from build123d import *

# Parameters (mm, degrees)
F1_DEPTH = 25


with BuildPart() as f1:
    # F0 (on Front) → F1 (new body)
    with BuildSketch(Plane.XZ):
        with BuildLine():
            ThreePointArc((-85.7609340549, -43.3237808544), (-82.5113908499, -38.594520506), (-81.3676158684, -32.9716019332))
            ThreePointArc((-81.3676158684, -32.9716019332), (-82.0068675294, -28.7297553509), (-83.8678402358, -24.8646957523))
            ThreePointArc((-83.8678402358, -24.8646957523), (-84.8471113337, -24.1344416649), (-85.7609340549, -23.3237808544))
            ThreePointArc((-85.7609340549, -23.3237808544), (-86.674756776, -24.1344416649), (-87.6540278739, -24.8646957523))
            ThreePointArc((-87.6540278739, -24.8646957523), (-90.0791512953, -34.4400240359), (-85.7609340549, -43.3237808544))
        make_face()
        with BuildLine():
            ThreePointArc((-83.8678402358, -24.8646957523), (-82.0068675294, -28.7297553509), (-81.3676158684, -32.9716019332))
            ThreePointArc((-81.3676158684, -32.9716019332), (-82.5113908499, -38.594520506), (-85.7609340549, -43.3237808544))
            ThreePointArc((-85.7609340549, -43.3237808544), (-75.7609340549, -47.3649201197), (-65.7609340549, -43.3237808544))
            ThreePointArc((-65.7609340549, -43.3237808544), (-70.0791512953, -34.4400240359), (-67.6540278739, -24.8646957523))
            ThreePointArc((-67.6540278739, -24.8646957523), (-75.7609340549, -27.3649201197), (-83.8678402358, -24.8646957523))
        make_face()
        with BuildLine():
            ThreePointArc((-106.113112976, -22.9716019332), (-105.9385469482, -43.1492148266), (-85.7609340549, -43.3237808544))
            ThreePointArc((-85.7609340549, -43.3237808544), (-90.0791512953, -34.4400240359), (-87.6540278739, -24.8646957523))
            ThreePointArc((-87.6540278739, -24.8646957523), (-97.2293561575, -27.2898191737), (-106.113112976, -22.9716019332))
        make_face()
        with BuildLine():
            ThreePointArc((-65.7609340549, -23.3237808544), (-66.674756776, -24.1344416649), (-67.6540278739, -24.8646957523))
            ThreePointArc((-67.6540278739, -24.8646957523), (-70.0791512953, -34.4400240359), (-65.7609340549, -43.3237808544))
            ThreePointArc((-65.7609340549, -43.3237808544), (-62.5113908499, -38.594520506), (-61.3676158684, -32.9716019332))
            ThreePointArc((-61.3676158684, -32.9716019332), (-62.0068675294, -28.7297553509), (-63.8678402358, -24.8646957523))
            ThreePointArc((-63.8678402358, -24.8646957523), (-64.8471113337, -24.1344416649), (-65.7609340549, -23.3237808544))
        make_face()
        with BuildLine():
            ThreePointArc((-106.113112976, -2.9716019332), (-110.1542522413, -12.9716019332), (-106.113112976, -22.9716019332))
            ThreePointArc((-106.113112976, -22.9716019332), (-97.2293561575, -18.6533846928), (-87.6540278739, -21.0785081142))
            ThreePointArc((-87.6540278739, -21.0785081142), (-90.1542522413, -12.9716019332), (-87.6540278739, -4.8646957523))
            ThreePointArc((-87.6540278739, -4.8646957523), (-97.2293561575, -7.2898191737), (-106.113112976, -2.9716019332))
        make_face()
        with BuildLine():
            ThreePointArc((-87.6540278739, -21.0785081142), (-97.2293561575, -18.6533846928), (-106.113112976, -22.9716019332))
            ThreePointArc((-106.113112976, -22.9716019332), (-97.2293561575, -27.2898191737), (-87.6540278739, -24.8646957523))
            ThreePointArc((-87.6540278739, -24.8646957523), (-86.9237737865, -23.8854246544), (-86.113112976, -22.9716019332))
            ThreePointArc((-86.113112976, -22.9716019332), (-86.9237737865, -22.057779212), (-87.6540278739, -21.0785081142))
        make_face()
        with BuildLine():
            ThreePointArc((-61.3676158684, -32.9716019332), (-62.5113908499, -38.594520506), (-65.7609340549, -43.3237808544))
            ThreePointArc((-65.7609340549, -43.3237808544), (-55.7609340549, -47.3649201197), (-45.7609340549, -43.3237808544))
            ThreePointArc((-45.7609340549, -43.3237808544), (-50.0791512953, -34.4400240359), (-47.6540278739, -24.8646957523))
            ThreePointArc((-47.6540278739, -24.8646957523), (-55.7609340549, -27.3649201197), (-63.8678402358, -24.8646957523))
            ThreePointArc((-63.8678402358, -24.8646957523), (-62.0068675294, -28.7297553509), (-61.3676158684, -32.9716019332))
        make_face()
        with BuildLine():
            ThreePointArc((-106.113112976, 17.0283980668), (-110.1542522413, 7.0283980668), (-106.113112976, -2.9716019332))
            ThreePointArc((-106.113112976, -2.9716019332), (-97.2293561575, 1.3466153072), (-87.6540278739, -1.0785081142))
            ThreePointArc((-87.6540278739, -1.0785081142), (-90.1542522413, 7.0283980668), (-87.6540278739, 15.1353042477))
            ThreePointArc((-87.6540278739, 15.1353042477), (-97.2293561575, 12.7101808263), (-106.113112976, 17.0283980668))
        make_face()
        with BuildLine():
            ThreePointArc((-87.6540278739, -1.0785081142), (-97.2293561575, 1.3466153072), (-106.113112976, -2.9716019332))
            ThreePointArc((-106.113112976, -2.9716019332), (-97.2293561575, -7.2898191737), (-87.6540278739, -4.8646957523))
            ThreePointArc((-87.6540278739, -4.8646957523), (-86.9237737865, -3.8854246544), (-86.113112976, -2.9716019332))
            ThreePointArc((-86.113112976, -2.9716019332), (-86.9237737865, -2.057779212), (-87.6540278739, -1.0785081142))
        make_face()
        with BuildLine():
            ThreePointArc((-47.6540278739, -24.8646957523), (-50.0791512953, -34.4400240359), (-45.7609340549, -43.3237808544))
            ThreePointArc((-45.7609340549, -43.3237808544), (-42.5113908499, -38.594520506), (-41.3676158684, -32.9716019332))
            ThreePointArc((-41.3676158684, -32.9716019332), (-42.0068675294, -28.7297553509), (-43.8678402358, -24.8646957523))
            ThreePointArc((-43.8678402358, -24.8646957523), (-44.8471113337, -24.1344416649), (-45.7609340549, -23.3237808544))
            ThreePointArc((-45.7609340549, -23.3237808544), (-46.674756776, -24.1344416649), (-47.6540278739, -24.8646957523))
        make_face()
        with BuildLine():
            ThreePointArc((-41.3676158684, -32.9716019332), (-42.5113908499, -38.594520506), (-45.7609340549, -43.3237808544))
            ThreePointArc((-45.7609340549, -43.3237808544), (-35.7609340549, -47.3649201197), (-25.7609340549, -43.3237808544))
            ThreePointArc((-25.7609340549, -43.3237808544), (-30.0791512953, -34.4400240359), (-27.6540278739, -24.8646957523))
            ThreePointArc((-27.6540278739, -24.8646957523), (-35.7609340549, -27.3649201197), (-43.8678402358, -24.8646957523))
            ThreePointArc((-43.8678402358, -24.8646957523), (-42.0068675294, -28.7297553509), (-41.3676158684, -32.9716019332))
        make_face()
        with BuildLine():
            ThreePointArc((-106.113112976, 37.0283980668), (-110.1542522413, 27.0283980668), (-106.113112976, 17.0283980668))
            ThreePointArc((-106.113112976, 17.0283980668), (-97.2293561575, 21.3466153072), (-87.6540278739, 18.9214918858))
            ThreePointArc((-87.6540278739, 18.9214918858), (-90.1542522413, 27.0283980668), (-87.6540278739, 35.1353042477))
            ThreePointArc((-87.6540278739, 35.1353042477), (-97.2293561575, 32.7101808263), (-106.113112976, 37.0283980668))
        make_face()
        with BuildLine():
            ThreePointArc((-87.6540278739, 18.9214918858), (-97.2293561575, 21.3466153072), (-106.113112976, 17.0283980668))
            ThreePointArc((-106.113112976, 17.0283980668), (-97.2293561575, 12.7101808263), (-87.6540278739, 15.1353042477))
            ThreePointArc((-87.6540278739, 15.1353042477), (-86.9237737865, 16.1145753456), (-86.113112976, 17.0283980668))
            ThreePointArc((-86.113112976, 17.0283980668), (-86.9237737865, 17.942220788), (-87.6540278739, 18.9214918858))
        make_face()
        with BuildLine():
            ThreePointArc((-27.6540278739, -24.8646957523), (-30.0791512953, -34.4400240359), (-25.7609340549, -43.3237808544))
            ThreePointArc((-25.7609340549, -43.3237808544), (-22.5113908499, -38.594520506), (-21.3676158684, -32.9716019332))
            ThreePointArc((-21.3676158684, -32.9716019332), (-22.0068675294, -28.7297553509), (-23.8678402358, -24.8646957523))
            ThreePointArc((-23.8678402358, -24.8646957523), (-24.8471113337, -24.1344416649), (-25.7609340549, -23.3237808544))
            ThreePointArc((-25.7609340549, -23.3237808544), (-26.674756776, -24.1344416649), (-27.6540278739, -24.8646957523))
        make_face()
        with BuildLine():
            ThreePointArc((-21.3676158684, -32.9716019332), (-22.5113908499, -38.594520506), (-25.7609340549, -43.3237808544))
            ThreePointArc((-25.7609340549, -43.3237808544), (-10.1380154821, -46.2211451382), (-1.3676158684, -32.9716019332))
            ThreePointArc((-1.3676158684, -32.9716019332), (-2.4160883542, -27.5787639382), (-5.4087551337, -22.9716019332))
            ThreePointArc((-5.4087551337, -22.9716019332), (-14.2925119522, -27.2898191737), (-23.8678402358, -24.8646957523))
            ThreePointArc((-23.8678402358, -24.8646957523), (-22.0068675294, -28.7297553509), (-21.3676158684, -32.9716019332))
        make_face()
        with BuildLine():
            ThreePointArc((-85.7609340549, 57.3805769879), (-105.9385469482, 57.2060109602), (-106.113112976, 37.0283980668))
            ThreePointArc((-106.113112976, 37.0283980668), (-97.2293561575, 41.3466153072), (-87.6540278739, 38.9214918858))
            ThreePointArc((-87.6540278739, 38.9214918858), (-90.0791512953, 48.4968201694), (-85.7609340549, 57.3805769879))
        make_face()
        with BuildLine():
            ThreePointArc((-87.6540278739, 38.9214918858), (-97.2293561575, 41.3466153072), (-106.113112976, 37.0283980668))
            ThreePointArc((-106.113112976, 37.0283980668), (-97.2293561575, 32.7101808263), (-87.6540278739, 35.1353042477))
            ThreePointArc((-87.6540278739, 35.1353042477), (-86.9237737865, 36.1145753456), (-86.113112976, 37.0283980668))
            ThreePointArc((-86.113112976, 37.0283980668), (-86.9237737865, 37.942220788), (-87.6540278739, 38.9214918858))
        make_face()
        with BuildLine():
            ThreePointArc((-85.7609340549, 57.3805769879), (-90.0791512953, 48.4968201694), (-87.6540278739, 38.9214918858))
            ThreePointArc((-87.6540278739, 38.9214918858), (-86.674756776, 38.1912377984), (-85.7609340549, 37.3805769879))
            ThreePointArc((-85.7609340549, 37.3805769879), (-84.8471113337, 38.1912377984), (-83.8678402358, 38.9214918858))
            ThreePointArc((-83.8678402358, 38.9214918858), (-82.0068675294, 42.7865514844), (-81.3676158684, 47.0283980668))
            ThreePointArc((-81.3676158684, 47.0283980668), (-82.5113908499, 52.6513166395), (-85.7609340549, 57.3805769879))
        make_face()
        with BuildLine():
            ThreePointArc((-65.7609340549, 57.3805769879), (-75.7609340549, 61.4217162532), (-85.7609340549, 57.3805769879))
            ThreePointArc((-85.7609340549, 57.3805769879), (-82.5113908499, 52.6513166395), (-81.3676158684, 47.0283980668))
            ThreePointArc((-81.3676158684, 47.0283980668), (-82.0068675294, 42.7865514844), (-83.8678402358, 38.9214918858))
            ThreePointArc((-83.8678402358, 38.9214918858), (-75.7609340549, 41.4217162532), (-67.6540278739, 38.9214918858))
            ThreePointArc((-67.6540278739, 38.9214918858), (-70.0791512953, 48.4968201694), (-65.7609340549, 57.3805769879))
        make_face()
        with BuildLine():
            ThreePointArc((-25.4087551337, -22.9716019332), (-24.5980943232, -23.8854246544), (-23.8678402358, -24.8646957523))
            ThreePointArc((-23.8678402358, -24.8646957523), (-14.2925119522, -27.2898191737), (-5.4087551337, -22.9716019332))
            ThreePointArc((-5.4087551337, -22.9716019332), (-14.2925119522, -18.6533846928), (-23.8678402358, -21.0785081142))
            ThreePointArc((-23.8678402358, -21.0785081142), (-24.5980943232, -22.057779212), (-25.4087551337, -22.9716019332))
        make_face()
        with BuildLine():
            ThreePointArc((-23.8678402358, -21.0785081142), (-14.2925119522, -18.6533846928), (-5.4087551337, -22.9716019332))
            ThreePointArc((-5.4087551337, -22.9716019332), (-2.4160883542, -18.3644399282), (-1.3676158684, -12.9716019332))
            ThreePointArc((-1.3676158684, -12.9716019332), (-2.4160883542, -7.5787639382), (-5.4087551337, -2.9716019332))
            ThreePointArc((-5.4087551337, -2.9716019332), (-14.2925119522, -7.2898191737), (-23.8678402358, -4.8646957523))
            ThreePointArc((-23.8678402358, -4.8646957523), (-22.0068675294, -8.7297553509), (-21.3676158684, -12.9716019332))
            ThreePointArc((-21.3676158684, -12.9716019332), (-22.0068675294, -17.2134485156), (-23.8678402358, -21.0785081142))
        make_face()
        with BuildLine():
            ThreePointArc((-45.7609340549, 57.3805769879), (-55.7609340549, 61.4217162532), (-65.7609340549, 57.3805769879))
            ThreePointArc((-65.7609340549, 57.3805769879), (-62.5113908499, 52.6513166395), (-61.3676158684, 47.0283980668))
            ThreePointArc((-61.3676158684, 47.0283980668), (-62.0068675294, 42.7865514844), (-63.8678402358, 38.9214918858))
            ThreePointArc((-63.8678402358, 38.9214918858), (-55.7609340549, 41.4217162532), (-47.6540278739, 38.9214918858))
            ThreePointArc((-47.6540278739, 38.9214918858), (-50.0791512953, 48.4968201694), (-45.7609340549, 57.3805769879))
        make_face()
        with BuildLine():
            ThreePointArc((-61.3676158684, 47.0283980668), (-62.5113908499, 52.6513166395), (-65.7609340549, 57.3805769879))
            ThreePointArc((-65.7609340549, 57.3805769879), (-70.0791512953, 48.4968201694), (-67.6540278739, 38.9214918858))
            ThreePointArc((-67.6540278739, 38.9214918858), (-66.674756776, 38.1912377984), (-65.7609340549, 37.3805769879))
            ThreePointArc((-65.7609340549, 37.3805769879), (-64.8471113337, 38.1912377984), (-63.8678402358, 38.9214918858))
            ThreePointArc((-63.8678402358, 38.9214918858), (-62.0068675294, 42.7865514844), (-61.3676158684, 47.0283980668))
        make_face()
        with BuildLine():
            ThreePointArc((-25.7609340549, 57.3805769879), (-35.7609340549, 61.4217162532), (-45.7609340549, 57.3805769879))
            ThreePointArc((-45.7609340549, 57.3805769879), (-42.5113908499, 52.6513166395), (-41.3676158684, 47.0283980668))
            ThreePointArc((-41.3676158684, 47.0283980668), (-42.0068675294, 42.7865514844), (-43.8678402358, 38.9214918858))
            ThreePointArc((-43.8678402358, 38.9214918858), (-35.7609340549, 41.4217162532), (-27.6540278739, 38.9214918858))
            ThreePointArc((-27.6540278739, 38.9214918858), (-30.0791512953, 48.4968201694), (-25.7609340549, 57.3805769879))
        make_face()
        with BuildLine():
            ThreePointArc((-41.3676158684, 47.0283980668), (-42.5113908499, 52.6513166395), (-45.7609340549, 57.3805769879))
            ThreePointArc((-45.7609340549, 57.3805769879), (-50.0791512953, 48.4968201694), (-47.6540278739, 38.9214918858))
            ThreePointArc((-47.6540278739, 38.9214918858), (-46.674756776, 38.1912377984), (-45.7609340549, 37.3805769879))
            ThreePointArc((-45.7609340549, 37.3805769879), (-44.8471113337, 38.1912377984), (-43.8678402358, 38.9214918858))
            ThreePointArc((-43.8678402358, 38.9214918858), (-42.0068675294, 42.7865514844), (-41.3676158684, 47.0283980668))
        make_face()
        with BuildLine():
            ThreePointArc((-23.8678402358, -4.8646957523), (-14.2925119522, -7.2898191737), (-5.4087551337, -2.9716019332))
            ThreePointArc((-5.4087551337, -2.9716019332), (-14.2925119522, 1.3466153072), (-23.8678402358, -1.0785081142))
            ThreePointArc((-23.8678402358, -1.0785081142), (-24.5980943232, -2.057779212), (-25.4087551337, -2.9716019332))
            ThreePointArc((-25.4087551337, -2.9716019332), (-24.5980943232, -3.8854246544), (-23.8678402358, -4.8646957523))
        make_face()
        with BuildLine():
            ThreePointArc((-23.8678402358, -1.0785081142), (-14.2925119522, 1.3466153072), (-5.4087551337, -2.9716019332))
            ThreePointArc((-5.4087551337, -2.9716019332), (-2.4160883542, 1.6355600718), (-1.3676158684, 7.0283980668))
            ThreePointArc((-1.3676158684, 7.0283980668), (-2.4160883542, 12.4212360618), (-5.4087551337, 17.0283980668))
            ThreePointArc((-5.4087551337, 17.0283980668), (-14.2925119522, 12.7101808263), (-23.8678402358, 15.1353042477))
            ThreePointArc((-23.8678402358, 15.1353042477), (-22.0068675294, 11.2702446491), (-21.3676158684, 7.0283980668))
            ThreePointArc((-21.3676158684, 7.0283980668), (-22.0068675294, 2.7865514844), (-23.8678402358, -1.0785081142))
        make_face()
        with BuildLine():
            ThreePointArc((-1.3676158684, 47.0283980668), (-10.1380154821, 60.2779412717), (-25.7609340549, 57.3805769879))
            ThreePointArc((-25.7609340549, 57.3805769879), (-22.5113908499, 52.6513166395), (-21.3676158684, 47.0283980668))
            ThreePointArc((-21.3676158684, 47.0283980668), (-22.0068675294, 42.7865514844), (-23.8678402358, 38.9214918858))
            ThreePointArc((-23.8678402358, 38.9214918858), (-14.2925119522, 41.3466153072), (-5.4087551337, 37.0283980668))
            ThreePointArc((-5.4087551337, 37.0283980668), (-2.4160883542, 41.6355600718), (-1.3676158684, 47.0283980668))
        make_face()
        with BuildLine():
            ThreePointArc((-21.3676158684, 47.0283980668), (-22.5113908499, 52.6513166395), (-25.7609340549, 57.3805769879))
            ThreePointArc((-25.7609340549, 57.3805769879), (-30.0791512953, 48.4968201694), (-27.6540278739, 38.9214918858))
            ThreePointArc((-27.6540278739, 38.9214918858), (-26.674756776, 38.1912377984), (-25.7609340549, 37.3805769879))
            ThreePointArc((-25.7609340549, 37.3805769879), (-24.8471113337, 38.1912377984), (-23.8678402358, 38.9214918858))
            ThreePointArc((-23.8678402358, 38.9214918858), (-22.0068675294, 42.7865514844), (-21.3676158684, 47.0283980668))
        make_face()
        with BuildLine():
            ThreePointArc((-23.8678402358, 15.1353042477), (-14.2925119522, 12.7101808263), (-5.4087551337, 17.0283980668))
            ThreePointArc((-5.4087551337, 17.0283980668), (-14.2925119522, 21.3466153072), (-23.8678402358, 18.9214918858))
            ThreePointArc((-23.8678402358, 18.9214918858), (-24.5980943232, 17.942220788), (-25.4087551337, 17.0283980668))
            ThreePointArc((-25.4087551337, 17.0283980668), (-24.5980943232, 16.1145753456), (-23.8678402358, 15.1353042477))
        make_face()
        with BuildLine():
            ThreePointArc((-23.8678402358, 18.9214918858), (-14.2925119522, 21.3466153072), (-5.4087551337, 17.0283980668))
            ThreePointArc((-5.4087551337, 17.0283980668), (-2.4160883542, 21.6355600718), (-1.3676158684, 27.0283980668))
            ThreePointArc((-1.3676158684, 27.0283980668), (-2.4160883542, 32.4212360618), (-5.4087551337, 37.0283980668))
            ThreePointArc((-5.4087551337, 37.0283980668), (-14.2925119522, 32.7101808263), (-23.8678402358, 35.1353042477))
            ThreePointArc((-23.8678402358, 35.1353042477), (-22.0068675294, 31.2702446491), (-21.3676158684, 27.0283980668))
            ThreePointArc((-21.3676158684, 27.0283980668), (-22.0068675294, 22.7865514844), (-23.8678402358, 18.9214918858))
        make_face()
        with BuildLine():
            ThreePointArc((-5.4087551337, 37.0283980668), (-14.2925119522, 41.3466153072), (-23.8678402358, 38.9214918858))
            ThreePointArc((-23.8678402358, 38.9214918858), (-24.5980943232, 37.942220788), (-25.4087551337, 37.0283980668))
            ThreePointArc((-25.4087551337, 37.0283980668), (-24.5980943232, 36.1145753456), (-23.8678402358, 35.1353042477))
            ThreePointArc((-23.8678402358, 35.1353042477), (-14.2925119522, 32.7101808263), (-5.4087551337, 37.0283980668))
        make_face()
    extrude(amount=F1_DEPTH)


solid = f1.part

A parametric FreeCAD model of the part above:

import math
import FreeCAD as App
import Part
import Sketcher

V = App.Vector

doc = App.newDocument("Part")
body = doc.addObject("PartDesign::Body", "Body")

# Sketch on XZ plane
sketch1 = body.newObject("Sketcher::SketchObject", "Sketch")
sketch1.AttachmentSupport = (doc.getObject("XZ_Plane"), [""])
sketch1.MapMode = "FlatFace"
sketch1.addGeometry([
    Part.ArcOfCircle(Part.Circle(V(-15.760934, 27.028398, 0), V(0, 0, 1), 14.393318), math.radians(0), math.radians(44.008639)),  # 0
    Part.ArcOfCircle(Part.Circle(V(-15.760934, 47.028398, 0), V(0, 0, 1), 14.393318), math.radians(-44.008639), math.radians(0)),  # 1
    Part.ArcOfCircle(Part.Circle(V(-15.760934, 47.028398, 0), V(0, 0, 1), 14.393318), math.radians(0), math.radians(134.008639)),  # 2
    Part.ArcOfCircle(Part.Circle(V(-35.760934, 47.028398, 0), V(0, 0, 1), 14.393318), math.radians(45.991361), math.radians(134.008639)),  # 3
    Part.ArcOfCircle(Part.Circle(V(-55.760934, 47.028398, 0), V(0, 0, 1), 14.393318), math.radians(45.991361), math.radians(134.008639)),  # 4
    Part.ArcOfCircle(Part.Circle(V(-75.760934, 47.028398, 0), V(0, 0, 1), 14.393318), math.radians(45.991361), math.radians(134.008639)),  # 5
    Part.ArcOfCircle(Part.Circle(V(-95.760934, 47.028398, 0), V(0, 0, 1), 14.393318), math.radians(45.991361), math.radians(224.008639)),  # 6
    Part.ArcOfCircle(Part.Circle(V(-95.760934, 27.028398, 0), V(0, 0, 1), 14.393318), math.radians(135.991361), math.radians(224.008639)),  # 7
    Part.ArcOfCircle(Part.Circle(V(-95.760934, 7.028398, 0), V(0, 0, 1), 14.393318), math.radians(135.991361), math.radians(224.008639)),  # 8
    Part.ArcOfCircle(Part.Circle(V(-95.760934, -12.971602, 0), V(0, 0, 1), 14.393318), math.radians(135.991361), math.radians(224.008639)),  # 9
    Part.ArcOfCircle(Part.Circle(V(-95.760934, -32.971602, 0), V(0, 0, 1), 14.393318), math.radians(135.991361), math.radians(314.008639)),  # 10
    Part.ArcOfCircle(Part.Circle(V(-75.760934, -32.971602, 0), V(0, 0, 1), 14.393318), math.radians(-134.008639), math.radians(-45.991361)),  # 11
    Part.ArcOfCircle(Part.Circle(V(-55.760934, -32.971602, 0), V(0, 0, 1), 14.393318), math.radians(-134.008639), math.radians(-45.991361)),  # 12
    Part.ArcOfCircle(Part.Circle(V(-35.760934, -32.971602, 0), V(0, 0, 1), 14.393318), math.radians(-134.008639), math.radians(-45.991361)),  # 13
    Part.ArcOfCircle(Part.Circle(V(-15.760934, -32.971602, 0), V(0, 0, 1), 14.393318), math.radians(-134.008639), math.radians(0)),  # 14
    Part.ArcOfCircle(Part.Circle(V(-15.760934, -32.971602, 0), V(0, 0, 1), 14.393318), math.radians(0), math.radians(44.008639)),  # 15
    Part.ArcOfCircle(Part.Circle(V(-15.760934, -12.971602, 0), V(0, 0, 1), 14.393318), math.radians(-44.008639), math.radians(0)),  # 16
    Part.ArcOfCircle(Part.Circle(V(-15.760934, -12.971602, 0), V(0, 0, 1), 14.393318), math.radians(0), math.radians(44.008639)),  # 17
    Part.ArcOfCircle(Part.Circle(V(-15.760934, 7.028398, 0), V(0, 0, 1), 14.393318), math.radians(-44.008639), math.radians(0)),  # 18
    Part.ArcOfCircle(Part.Circle(V(-15.760934, 7.028398, 0), V(0, 0, 1), 14.393318), math.radians(0), math.radians(44.008639)),  # 19
    Part.ArcOfCircle(Part.Circle(V(-15.760934, 27.028398, 0), V(0, 0, 1), 14.393318), math.radians(-44.008639), math.radians(0)),  # 20
    Part.ArcOfCircle(Part.Circle(V(-15.760934, 27.028398, 0), V(0, 0, 1), 14.393318), math.radians(124.280229), math.radians(134.008639)),  # 21
    Part.ArcOfCircle(Part.Circle(V(-35.760934, 47.028398, 0), V(0, 0, 1), 14.393318), math.radians(-44.008639), math.radians(-34.280229)),  # 22
    Part.ArcOfCircle(Part.Circle(V(-35.760934, 27.028398, 0), V(0, 0, 1), 14.393318), math.radians(34.280229), math.radians(44.008639)),  # 23
    Part.ArcOfCircle(Part.Circle(V(-35.760934, 27.028398, 0), V(0, 0, 1), 14.393318), math.radians(0), math.radians(34.280229)),  # 24
    Part.ArcOfCircle(Part.Circle(V(-35.760934, 27.028398, 0), V(0, 0, 1), 14.393318), math.radians(-34.280229), math.radians(0)),  # 25
    Part.ArcOfCircle(Part.Circle(V(-35.760934, 27.028398, 0), V(0, 0, 1), 14.393318), math.radians(-44.008639), math.radians(-34.280229)),  # 26
    Part.ArcOfCircle(Part.Circle(V(-35.760934, 7.028398, 0), V(0, 0, 1), 14.393318), math.radians(34.280229), math.radians(44.008639)),  # 27
    Part.ArcOfCircle(Part.Circle(V(-35.760934, 7.028398, 0), V(0, 0, 1), 14.393318), math.radians(0), math.radians(34.280229)),  # 28
    Part.ArcOfCircle(Part.Circle(V(-35.760934, 7.028398, 0), V(0, 0, 1), 14.393318), math.radians(-34.280229), math.radians(0)),  # 29
    Part.ArcOfCircle(Part.Circle(V(-35.760934, 7.028398, 0), V(0, 0, 1), 14.393318), math.radians(-44.008639), math.radians(-34.280229)),  # 30
    Part.ArcOfCircle(Part.Circle(V(-35.760934, -12.971602, 0), V(0, 0, 1), 14.393318), math.radians(34.280229), math.radians(44.008639)),  # 31
    Part.ArcOfCircle(Part.Circle(V(-35.760934, -12.971602, 0), V(0, 0, 1), 14.393318), math.radians(0), math.radians(34.280229)),  # 32
    Part.ArcOfCircle(Part.Circle(V(-35.760934, -12.971602, 0), V(0, 0, 1), 14.393318), math.radians(-34.280229), math.radians(0)),  # 33
    Part.ArcOfCircle(Part.Circle(V(-35.760934, -12.971602, 0), V(0, 0, 1), 14.393318), math.radians(-44.008639), math.radians(-34.280229)),  # 34
    Part.ArcOfCircle(Part.Circle(V(-35.760934, -32.971602, 0), V(0, 0, 1), 14.393318), math.radians(34.280229), math.radians(44.008639)),  # 35
    Part.ArcOfCircle(Part.Circle(V(-15.760934, -12.971602, 0), V(0, 0, 1), 14.393318), math.radians(-134.008639), math.radians(-124.280229)),  # 36
    Part.ArcOfCircle(Part.Circle(V(-35.760934, -12.971602, 0), V(0, 0, 1), 14.393318), math.radians(-55.719771), math.radians(-45.991361)),  # 37
    Part.ArcOfCircle(Part.Circle(V(-35.760934, -12.971602, 0), V(0, 0, 1), 14.393318), math.radians(-124.280229), math.radians(-55.719771)),  # 38
    Part.ArcOfCircle(Part.Circle(V(-35.760934, -12.971602, 0), V(0, 0, 1), 14.393318), math.radians(-134.008639), math.radians(-124.280229)),  # 39
    Part.ArcOfCircle(Part.Circle(V(-55.760934, -12.971602, 0), V(0, 0, 1), 14.393318), math.radians(-55.719771), math.radians(-45.991361)),  # 40
    Part.ArcOfCircle(Part.Circle(V(-55.760934, -12.971602, 0), V(0, 0, 1), 14.393318), math.radians(-124.280229), math.radians(-55.719771)),  # 41
    Part.ArcOfCircle(Part.Circle(V(-55.760934, -12.971602, 0), V(0, 0, 1), 14.393318), math.radians(-134.008639), math.radians(-124.280229)),  # 42
    Part.ArcOfCircle(Part.Circle(V(-75.760934, -12.971602, 0), V(0, 0, 1), 14.393318), math.radians(-55.719771), math.radians(-45.991361)),  # 43
    Part.ArcOfCircle(Part.Circle(V(-75.760934, -12.971602, 0), V(0, 0, 1), 14.393318), math.radians(-124.280229), math.radians(-55.719771)),  # 44
    Part.ArcOfCircle(Part.Circle(V(-75.760934, -12.971602, 0), V(0, 0, 1), 14.393318), math.radians(-134.008639), math.radians(-124.280229)),  # 45
    Part.ArcOfCircle(Part.Circle(V(-95.760934, -12.971602, 0), V(0, 0, 1), 14.393318), math.radians(-55.719771), math.radians(-45.991361)),  # 46
    Part.ArcOfCircle(Part.Circle(V(-75.760934, -32.971602, 0), V(0, 0, 1), 14.393318), math.radians(135.991361), math.radians(145.719771)),  # 47
    Part.ArcOfCircle(Part.Circle(V(-75.760934, -12.971602, 0), V(0, 0, 1), 14.393318), math.radians(-145.719771), math.radians(-135.991361)),  # 48
    Part.ArcOfCircle(Part.Circle(V(-75.760934, -12.971602, 0), V(0, 0, 1), 14.393318), math.radians(145.719771), math.radians(214.280229)),  # 49
    Part.ArcOfCircle(Part.Circle(V(-75.760934, -12.971602, 0), V(0, 0, 1), 14.393318), math.radians(135.991361), math.radians(145.719771)),  # 50
    Part.ArcOfCircle(Part.Circle(V(-75.760934, 7.028398, 0), V(0, 0, 1), 14.393318), math.radians(-145.719771), math.radians(-135.991361)),  # 51
    Part.ArcOfCircle(Part.Circle(V(-75.760934, 7.028398, 0), V(0, 0, 1), 14.393318), math.radians(145.719771), math.radians(214.280229)),  # 52
    Part.ArcOfCircle(Part.Circle(V(-75.760934, 7.028398, 0), V(0, 0, 1), 14.393318), math.radians(135.991361), math.radians(145.719771)),  # 53
    Part.ArcOfCircle(Part.Circle(V(-75.760934, 27.028398, 0), V(0, 0, 1), 14.393318), math.radians(-145.719771), math.radians(-135.991361)),  # 54
    Part.ArcOfCircle(Part.Circle(V(-75.760934, 27.028398, 0), V(0, 0, 1), 14.393318), math.radians(145.719771), math.radians(214.280229)),  # 55
    Part.ArcOfCircle(Part.Circle(V(-75.760934, 27.028398, 0), V(0, 0, 1), 14.393318), math.radians(135.991361), math.radians(145.719771)),  # 56
    Part.ArcOfCircle(Part.Circle(V(-75.760934, 47.028398, 0), V(0, 0, 1), 14.393318), math.radians(-145.719771), math.radians(-135.991361)),  # 57
    Part.ArcOfCircle(Part.Circle(V(-95.760934, 27.028398, 0), V(0, 0, 1), 14.393318), math.radians(45.991361), math.radians(55.719771)),  # 58
    Part.ArcOfCircle(Part.Circle(V(-75.760934, 27.028398, 0), V(0, 0, 1), 14.393318), math.radians(124.280229), math.radians(134.008639)),  # 59
    Part.ArcOfCircle(Part.Circle(V(-75.760934, 27.028398, 0), V(0, 0, 1), 14.393318), math.radians(55.719771), math.radians(124.280229)),  # 60
    Part.ArcOfCircle(Part.Circle(V(-75.760934, 27.028398, 0), V(0, 0, 1), 14.393318), math.radians(45.991361), math.radians(55.719771)),  # 61
    Part.ArcOfCircle(Part.Circle(V(-55.760934, 27.028398, 0), V(0, 0, 1), 14.393318), math.radians(124.280229), math.radians(134.008639)),  # 62
    Part.ArcOfCircle(Part.Circle(V(-55.760934, 27.028398, 0), V(0, 0, 1), 14.393318), math.radians(55.719771), math.radians(124.280229)),  # 63
    Part.ArcOfCircle(Part.Circle(V(-55.760934, 27.028398, 0), V(0, 0, 1), 14.393318), math.radians(45.991361), math.radians(55.719771)),  # 64
    Part.ArcOfCircle(Part.Circle(V(-35.760934, 27.028398, 0), V(0, 0, 1), 14.393318), math.radians(124.280229), math.radians(134.008639)),  # 65
    Part.ArcOfCircle(Part.Circle(V(-35.760934, 27.028398, 0), V(0, 0, 1), 14.393318), math.radians(55.719771), math.radians(124.280229)),  # 66
    Part.ArcOfCircle(Part.Circle(V(-35.760934, 27.028398, 0), V(0, 0, 1), 14.393318), math.radians(45.991361), math.radians(55.719771)),  # 67
], False)
sketch1.addConstraint([
    Sketcher.Constraint("Coincident", 0, 2, 1, 1),
    Sketcher.Constraint("Tangent", 1, 2, 2, 1),
    Sketcher.Constraint("Coincident", 2, 2, 3, 1),
    Sketcher.Constraint("Coincident", 3, 2, 4, 1),
    Sketcher.Constraint("Coincident", 4, 2, 5, 1),
    Sketcher.Constraint("Coincident", 5, 2, 6, 1),
    Sketcher.Constraint("Coincident", 6, 2, 7, 1),
    Sketcher.Constraint("Coincident", 7, 2, 8, 1),
    Sketcher.Constraint("Coincident", 8, 2, 9, 1),
    Sketcher.Constraint("Coincident", 9, 2, 10, 1),
    Sketcher.Constraint("Coincident", 10, 2, 11, 1),
    Sketcher.Constraint("Coincident", 11, 2, 12, 1),
    Sketcher.Constraint("Coincident", 12, 2, 13, 1),
    Sketcher.Constraint("Coincident", 13, 2, 14, 1),
    Sketcher.Constraint("Tangent", 14, 2, 15, 1),
    Sketcher.Constraint("Coincident", 15, 2, 16, 1),
    Sketcher.Constraint("Tangent", 16, 2, 17, 1),
    Sketcher.Constraint("Coincident", 17, 2, 18, 1),
    Sketcher.Constraint("Tangent", 18, 2, 19, 1),
    Sketcher.Constraint("Coincident", 19, 2, 20, 1),
    Sketcher.Constraint("Tangent", 20, 2, 0, 1),
    Sketcher.Constraint("Coincident", 21, 1, 22, 2),
    Sketcher.Constraint("Coincident", 22, 1, 23, 2),
    Sketcher.Constraint("Tangent", 23, 1, 24, 2),
    Sketcher.Constraint("Tangent", 24, 1, 25, 2),
    Sketcher.Constraint("Tangent", 25, 1, 26, 2),
    Sketcher.Constraint("Coincident", 26, 1, 27, 2),
    Sketcher.Constraint("Tangent", 27, 1, 28, 2),
    Sketcher.Constraint("Tangent", 28, 1, 29, 2),
    Sketcher.Constraint("Tangent", 29, 1, 30, 2),
    Sketcher.Constraint("Coincident", 30, 1, 31, 2),
    Sketcher.Constraint("Tangent", 31, 1, 32, 2),
    Sketcher.Constraint("Tangent", 32, 1, 33, 2),
    Sketcher.Constraint("Tangent", 33, 1, 34, 2),
    Sketcher.Constraint("Coincident", 34, 1, 35, 2),
    Sketcher.Constraint("Coincident", 35, 1, 36, 2),
    Sketcher.Constraint("Coincident", 36, 1, 37, 2),
    Sketcher.Constraint("Tangent", 37, 1, 38, 2),
    Sketcher.Constraint("Tangent", 38, 1, 39, 2),
    Sketcher.Constraint("Coincident", 39, 1, 40, 2),
    Sketcher.Constraint("Tangent", 40, 1, 41, 2),
    Sketcher.Constraint("Tangent", 41, 1, 42, 2),
    Sketcher.Constraint("Coincident", 42, 1, 43, 2),
    Sketcher.Constraint("Tangent", 43, 1, 44, 2),
    Sketcher.Constraint("Tangent", 44, 1, 45, 2),
    Sketcher.Constraint("Coincident", 45, 1, 46, 2),
    Sketcher.Constraint("Coincident", 46, 1, 47, 2),
    Sketcher.Constraint("Coincident", 47, 1, 48, 2),
    Sketcher.Constraint("Tangent", 48, 1, 49, 2),
    Sketcher.Constraint("Tangent", 49, 1, 50, 2),
    Sketcher.Constraint("Coincident", 50, 1, 51, 2),
    Sketcher.Constraint("Tangent", 51, 1, 52, 2),
    Sketcher.Constraint("Tangent", 52, 1, 53, 2),
    Sketcher.Constraint("Coincident", 53, 1, 54, 2),
    Sketcher.Constraint("Tangent", 54, 1, 55, 2),
    Sketcher.Constraint("Tangent", 55, 1, 56, 2),
    Sketcher.Constraint("Coincident", 56, 1, 57, 2),
    Sketcher.Constraint("Coincident", 57, 1, 58, 2),
    Sketcher.Constraint("Coincident", 58, 1, 59, 2),
    Sketcher.Constraint("Tangent", 59, 1, 60, 2),
    Sketcher.Constraint("Tangent", 60, 1, 61, 2),
    Sketcher.Constraint("Coincident", 61, 1, 62, 2),
    Sketcher.Constraint("Tangent", 62, 1, 63, 2),
    Sketcher.Constraint("Tangent", 63, 1, 64, 2),
    Sketcher.Constraint("Coincident", 64, 1, 65, 2),
    Sketcher.Constraint("Tangent", 65, 1, 66, 2),
    Sketcher.Constraint("Tangent", 66, 1, 67, 2),
    Sketcher.Constraint("Coincident", 67, 1, 21, 2),
    Sketcher.Constraint("Coincident", 21, 3, 0, 3),
    Sketcher.Constraint("Coincident", 22, 3, 3, 3),
    Sketcher.Constraint("Coincident", 25, 3, 23, 3),
    Sketcher.Constraint("Coincident", 29, 3, 27, 3),
    Sketcher.Constraint("Coincident", 33, 3, 31, 3),
    Sketcher.Constraint("Coincident", 35, 3, 13, 3),
    Sketcher.Constraint("Coincident", 36, 3, 16, 3),
    Sketcher.Constraint("Coincident", 37, 3, 31, 3),
    Sketcher.Constraint("Coincident", 39, 3, 31, 3),
    Sketcher.Constraint("Coincident", 42, 3, 40, 3),
    Sketcher.Constraint("Coincident", 45, 3, 43, 3),
    Sketcher.Constraint("Coincident", 46, 3, 9, 3),
    Sketcher.Constraint("Coincident", 47, 3, 11, 3),
    Sketcher.Constraint("Coincident", 48, 3, 43, 3),
    Sketcher.Constraint("Coincident", 50, 3, 43, 3),
    Sketcher.Constraint("Coincident", 53, 3, 51, 3),
    Sketcher.Constraint("Coincident", 56, 3, 54, 3),
    Sketcher.Constraint("Coincident", 57, 3, 5, 3),
    Sketcher.Constraint("Coincident", 58, 3, 7, 3),
    Sketcher.Constraint("Coincident", 59, 3, 54, 3),
    Sketcher.Constraint("Coincident", 61, 3, 54, 3),
    Sketcher.Constraint("Coincident", 64, 3, 62, 3),
    Sketcher.Constraint("Coincident", 65, 3, 23, 3),
    Sketcher.Constraint("Coincident", 67, 3, 23, 3),
    Sketcher.Constraint("Equal", 0, 1),
    Sketcher.Constraint("Equal", 1, 2),
    Sketcher.Constraint("Equal", 2, 3),
    Sketcher.Constraint("Equal", 3, 4),
    Sketcher.Constraint("Equal", 4, 5),
    Sketcher.Constraint("Equal", 5, 6),
    Sketcher.Constraint("Equal", 6, 7),
    Sketcher.Constraint("Equal", 7, 8),
    Sketcher.Constraint("Equal", 8, 9),
    Sketcher.Constraint("Equal", 9, 10),
    Sketcher.Constraint("Equal", 10, 11),
    Sketcher.Constraint("Equal", 11, 12),
    Sketcher.Constraint("Equal", 12, 13),
    Sketcher.Constraint("Equal", 13, 14),
    Sketcher.Constraint("Equal", 14, 15),
    Sketcher.Constraint("Equal", 15, 16),
    Sketcher.Constraint("Equal", 16, 17),
    Sketcher.Constraint("Equal", 17, 18),
    Sketcher.Constraint("Equal", 18, 19),
    Sketcher.Constraint("Equal", 19, 20),
    Sketcher.Constraint("Equal", 20, 21),
    Sketcher.Constraint("Equal", 21, 22),
    Sketcher.Constraint("Equal", 22, 23),
    Sketcher.Constraint("Equal", 25, 26),
    Sketcher.Constraint("Equal", 26, 27),
    Sketcher.Constraint("Equal", 29, 30),
    Sketcher.Constraint("Equal", 30, 31),
    Sketcher.Constraint("Equal", 33, 34),
    Sketcher.Constraint("Equal", 34, 35),
    Sketcher.Constraint("Equal", 35, 36),
    Sketcher.Constraint("Equal", 36, 37),
    Sketcher.Constraint("Equal", 39, 40),
    Sketcher.Constraint("Equal", 42, 43),
    Sketcher.Constraint("Equal", 45, 46),
    Sketcher.Constraint("Equal", 46, 47),
    Sketcher.Constraint("Equal", 47, 48),
    Sketcher.Constraint("Equal", 50, 51),
    Sketcher.Constraint("Equal", 53, 54),
    Sketcher.Constraint("Equal", 56, 57),
    Sketcher.Constraint("Equal", 57, 58),
    Sketcher.Constraint("Equal", 58, 59),
    Sketcher.Constraint("Equal", 61, 62),
    Sketcher.Constraint("Equal", 64, 65),
    Sketcher.Constraint("Horizontal", 2, 3, 3, 3),
    Sketcher.Constraint("Horizontal", 3, 3, 4, 3),
    Sketcher.Constraint("Horizontal", 4, 3, 5, 3),
    Sketcher.Constraint("Horizontal", 5, 3, 6, 3),
    Sketcher.Constraint("Horizontal", 0, 3, 7, 3),
    Sketcher.Constraint("Horizontal", 10, 3, 11, 3),
    Sketcher.Constraint("Horizontal", 11, 3, 12, 3),
    Sketcher.Constraint("Horizontal", 12, 3, 13, 3),
    Sketcher.Constraint("Horizontal", 13, 3, 14, 3),
    Sketcher.Constraint("Horizontal", 9, 3, 16, 3),
    Sketcher.Constraint("Horizontal", 8, 3, 18, 3),
    Sketcher.Constraint("Horizontal", 21, 3, 23, 3),
    Sketcher.Constraint("Horizontal", 19, 3, 27, 3),
    Sketcher.Constraint("Horizontal", 17, 3, 31, 3),
    Sketcher.Constraint("Horizontal", 39, 3, 40, 3),
    Sketcher.Constraint("Horizontal", 42, 3, 43, 3),
    Sketcher.Constraint("Horizontal", 30, 3, 51, 3),
    Sketcher.Constraint("Horizontal", 26, 3, 54, 3),
    Sketcher.Constraint("Horizontal", 61, 3, 62, 3),
    Sketcher.Constraint("Horizontal", 57, 3, 1, 2),
    Sketcher.Constraint("Horizontal", 2, 2, 3, 2),
    Sketcher.Constraint("Horizontal", 3, 2, 4, 2),
    Sketcher.Constraint("Horizontal", 4, 2, 5, 2),
    Sketcher.Constraint("Horizontal", 0, 2, 6, 2),
    Sketcher.Constraint("Horizontal", 10, 2, 11, 2),
    Sketcher.Constraint("Horizontal", 11, 2, 12, 2),
    Sketcher.Constraint("Horizontal", 12, 2, 13, 2),
    Sketcher.Constraint("Horizontal", 47, 3, 14, 2),
    Sketcher.Constraint("Horizontal", 9, 2, 15, 2),
    Sketcher.Constraint("Horizontal", 50, 3, 16, 2),
    Sketcher.Constraint("Horizontal", 8, 2, 17, 2),
    Sketcher.Constraint("Horizontal", 53, 3, 18, 2),
    Sketcher.Constraint("Horizontal", 7, 2, 19, 2),
    Sketcher.Constraint("Horizontal", 67, 3, 20, 2),
    Sketcher.Constraint("Horizontal", 6, 2, 22, 1),
    Sketcher.Constraint("Horizontal", 20, 2, 24, 1),
    Sketcher.Constraint("Horizontal", 19, 2, 26, 1),
    Sketcher.Constraint("Horizontal", 18, 2, 28, 1),
    Sketcher.Constraint("Horizontal", 17, 2, 30, 1),
    Sketcher.Constraint("Horizontal", 16, 2, 32, 1),
    Sketcher.Constraint("Horizontal", 15, 2, 34, 1),
    Sketcher.Constraint("Horizontal", 35, 1, 37, 1),
    Sketcher.Constraint("Horizontal", 37, 1, 38, 1),
    Sketcher.Constraint("Horizontal", 36, 1, 39, 1),
    Sketcher.Constraint("Horizontal", 38, 1, 40, 1),
    Sketcher.Constraint("Horizontal", 40, 1, 41, 1),
    Sketcher.Constraint("Horizontal", 39, 1, 42, 1),
    Sketcher.Constraint("Horizontal", 41, 1, 43, 1),
    Sketcher.Constraint("Horizontal", 43, 1, 44, 1),
    Sketcher.Constraint("Horizontal", 42, 1, 45, 1),
    Sketcher.Constraint("Horizontal", 33, 1, 48, 1),
    Sketcher.Constraint("Horizontal", 31, 1, 49, 1),
    Sketcher.Constraint("Horizontal", 30, 1, 50, 1),
    Sketcher.Constraint("Horizontal", 29, 1, 51, 1),
    Sketcher.Constraint("Horizontal", 27, 1, 52, 1),
    Sketcher.Constraint("Horizontal", 26, 1, 53, 1),
    Sketcher.Constraint("Horizontal", 25, 1, 54, 1),
    Sketcher.Constraint("Horizontal", 23, 1, 55, 1),
    Sketcher.Constraint("Horizontal", 57, 1, 59, 1),
    Sketcher.Constraint("Horizontal", 59, 1, 60, 1),
    Sketcher.Constraint("Horizontal", 58, 1, 61, 1),
    Sketcher.Constraint("Horizontal", 60, 1, 62, 1),
    Sketcher.Constraint("Horizontal", 62, 1, 63, 1),
    Sketcher.Constraint("Horizontal", 61, 1, 64, 1),
    Sketcher.Constraint("Horizontal", 63, 1, 65, 1),
    Sketcher.Constraint("Horizontal", 65, 1, 66, 1),
    Sketcher.Constraint("Vertical", 7, 3, 8, 3),
    Sketcher.Constraint("Vertical", 6, 2, 7, 2),
    Sketcher.Constraint("Vertical", 7, 2, 8, 2),
    Sketcher.Constraint("Vertical", 8, 2, 9, 2),
    Sketcher.Constraint("Vertical", 21, 1, 23, 1),
    Sketcher.Constraint("Vertical", 23, 1, 25, 1),
    Sketcher.Constraint("Vertical", 25, 1, 27, 1),
    Sketcher.Constraint("Vertical", 27, 1, 29, 1),
    Sketcher.Constraint("Vertical", 29, 1, 31, 1),
    Sketcher.Constraint("Vertical", 31, 1, 33, 1),
    Sketcher.Constraint("Radius", 0, 14.393318),
    Sketcher.Constraint("DistanceY", -1, 1, 0, 3, 27.028398),
    Sketcher.Constraint("DistanceY", -1, 1, 1, 3, 47.028398),
    Sketcher.Constraint("DistanceY", 10, 2, -1, 1, 43.323781),
    Sketcher.Constraint("DistanceX", 21, 1, -1, 1, 23.86784),
])
pad1 = body.newObject("PartDesign::Pad", "Pad")
pad1.Profile = sketch1
pad1.Length = 25

doc.recompute()
